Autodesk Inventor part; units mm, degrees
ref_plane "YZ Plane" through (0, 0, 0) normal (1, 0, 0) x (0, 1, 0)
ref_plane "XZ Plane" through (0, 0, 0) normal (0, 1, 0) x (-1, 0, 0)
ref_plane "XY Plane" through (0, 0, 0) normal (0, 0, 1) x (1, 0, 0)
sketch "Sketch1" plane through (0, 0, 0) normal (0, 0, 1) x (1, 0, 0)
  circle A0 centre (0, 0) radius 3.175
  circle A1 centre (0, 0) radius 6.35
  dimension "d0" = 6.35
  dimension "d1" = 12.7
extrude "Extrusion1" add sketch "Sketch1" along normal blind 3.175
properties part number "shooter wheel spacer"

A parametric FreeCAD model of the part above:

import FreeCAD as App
import Part
import Sketcher

V = App.Vector
Q = App.Units.Quantity

doc = App.newDocument("Part")
body = doc.addObject("PartDesign::Body", "Body")

sketch1 = body.newObject("Sketcher::SketchObject", "Sketch")
sketch1.AttachmentSupport = (doc.getObject("XY_Plane"), [""])
sketch1.MapMode = "FlatFace"
sketch1.addGeometry([
    Part.Circle(V(0, 0, 0), V(0, 0, 1), 6.3),
    Part.Circle(V(0, 0, 0), V(0, 0, 1), 3.2),
], False)
sketch1.addConstraint([
    Sketcher.Constraint("Coincident", 0, 3, -1, 1),
    Sketcher.Constraint("Coincident", 1, 3, -1, 1),
    Sketcher.Constraint("Diameter", 0, Q("0.5 in")),
    Sketcher.Constraint("Diameter", 1, Q("0.25 in")),
])
pad1 = body.newObject("PartDesign::Pad", "Pad")
pad1.Profile = sketch1
pad1.Length = Q("0.125 in")

doc.recompute()
